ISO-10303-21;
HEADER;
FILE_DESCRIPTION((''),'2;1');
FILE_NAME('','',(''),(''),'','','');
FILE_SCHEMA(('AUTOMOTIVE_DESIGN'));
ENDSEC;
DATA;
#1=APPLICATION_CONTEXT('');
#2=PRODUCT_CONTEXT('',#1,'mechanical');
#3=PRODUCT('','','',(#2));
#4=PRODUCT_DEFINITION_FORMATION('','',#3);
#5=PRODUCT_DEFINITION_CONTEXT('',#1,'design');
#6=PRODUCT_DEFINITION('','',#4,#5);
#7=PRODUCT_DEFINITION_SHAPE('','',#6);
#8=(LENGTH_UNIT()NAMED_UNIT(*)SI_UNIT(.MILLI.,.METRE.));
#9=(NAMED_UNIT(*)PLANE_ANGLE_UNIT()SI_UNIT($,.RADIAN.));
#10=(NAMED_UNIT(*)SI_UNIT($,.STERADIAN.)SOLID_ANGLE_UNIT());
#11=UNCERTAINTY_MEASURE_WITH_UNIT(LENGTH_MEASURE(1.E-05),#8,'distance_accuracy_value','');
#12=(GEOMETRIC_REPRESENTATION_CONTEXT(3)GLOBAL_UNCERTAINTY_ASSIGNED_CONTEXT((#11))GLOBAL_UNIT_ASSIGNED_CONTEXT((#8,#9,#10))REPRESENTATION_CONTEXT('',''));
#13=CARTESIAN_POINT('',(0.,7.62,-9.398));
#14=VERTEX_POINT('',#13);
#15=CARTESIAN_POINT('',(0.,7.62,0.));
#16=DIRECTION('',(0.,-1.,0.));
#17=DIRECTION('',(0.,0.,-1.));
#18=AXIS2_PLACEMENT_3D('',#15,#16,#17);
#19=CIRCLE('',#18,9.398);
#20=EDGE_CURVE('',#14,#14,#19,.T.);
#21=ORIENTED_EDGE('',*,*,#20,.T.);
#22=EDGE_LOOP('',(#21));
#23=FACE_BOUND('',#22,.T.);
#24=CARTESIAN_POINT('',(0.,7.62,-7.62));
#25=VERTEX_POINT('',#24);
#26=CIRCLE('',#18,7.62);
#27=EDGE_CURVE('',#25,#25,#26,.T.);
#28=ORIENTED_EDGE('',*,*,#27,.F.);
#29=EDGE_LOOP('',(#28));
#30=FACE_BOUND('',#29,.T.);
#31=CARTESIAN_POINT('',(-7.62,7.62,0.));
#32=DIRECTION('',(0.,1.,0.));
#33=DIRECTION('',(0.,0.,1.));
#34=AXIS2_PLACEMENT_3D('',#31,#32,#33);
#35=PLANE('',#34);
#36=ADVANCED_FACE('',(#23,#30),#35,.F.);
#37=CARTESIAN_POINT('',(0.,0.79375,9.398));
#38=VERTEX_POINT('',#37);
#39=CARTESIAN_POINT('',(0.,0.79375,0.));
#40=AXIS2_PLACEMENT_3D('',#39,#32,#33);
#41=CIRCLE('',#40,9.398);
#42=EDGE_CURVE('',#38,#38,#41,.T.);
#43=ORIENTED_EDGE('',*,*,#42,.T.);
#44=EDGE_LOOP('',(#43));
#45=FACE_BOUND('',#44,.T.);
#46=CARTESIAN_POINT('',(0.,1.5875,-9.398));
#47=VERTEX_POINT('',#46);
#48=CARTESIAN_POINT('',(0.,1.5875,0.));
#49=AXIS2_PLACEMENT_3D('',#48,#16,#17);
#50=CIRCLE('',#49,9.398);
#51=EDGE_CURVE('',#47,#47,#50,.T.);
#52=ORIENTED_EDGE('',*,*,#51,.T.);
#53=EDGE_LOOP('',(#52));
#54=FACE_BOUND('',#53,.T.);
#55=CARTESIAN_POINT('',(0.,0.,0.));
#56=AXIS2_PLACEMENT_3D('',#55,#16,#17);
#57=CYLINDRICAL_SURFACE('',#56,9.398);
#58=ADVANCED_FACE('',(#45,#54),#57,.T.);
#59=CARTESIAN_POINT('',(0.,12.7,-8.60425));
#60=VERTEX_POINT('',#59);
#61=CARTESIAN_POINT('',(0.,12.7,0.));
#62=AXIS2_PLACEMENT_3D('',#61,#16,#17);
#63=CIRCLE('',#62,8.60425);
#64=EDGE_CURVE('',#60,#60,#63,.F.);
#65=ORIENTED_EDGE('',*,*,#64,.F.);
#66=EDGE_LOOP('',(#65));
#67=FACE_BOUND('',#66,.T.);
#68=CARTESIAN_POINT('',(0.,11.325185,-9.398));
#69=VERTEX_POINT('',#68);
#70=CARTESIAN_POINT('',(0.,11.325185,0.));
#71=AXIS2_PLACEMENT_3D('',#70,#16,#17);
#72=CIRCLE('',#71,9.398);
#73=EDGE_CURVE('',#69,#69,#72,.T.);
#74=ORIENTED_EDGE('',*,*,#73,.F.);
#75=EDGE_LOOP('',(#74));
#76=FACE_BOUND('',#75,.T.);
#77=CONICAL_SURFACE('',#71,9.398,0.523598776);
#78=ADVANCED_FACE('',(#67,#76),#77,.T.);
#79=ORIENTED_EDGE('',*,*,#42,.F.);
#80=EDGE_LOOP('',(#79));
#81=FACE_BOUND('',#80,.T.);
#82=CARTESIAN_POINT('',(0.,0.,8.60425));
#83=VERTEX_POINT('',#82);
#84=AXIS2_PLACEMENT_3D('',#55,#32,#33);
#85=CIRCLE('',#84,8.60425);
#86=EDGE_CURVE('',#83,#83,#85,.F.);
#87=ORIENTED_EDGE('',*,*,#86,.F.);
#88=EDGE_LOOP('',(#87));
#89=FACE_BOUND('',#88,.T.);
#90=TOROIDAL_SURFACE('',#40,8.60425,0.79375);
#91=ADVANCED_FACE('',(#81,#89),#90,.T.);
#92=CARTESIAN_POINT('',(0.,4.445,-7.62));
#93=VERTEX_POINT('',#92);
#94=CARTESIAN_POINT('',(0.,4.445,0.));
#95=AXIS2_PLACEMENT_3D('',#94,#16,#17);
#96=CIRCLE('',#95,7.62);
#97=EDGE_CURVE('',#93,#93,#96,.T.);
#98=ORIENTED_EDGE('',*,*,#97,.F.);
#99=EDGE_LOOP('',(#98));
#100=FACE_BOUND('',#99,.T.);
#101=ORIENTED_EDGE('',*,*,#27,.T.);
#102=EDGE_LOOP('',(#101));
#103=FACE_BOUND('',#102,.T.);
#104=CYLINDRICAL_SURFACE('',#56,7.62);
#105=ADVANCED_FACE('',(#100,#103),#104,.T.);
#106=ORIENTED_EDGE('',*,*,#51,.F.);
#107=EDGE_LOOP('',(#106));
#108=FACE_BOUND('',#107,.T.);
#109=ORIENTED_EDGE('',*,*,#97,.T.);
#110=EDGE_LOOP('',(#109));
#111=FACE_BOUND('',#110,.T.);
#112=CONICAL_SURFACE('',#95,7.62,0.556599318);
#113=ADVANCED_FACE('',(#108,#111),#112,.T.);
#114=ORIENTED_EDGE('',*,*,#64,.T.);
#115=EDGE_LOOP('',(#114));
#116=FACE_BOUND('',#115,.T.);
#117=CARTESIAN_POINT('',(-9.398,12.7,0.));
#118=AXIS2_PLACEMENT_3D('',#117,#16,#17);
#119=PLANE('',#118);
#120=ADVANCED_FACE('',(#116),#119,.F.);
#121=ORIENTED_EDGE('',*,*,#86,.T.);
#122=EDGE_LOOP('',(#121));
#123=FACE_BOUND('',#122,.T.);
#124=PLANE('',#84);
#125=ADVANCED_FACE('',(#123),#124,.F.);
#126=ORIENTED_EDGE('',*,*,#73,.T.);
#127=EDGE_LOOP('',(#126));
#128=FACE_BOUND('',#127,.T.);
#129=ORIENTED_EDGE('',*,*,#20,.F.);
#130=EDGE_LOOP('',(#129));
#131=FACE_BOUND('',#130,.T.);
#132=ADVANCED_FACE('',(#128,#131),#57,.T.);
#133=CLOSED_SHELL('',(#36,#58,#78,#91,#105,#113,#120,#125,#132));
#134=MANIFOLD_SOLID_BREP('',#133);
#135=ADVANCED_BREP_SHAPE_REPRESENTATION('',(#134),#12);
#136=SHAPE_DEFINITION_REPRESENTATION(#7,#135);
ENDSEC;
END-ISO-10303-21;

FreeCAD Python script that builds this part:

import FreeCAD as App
import Part
import Sketcher

V = App.Vector
Q = App.Units.Quantity


def edges_at(feature, points):
    """Names of the edges that pass closest to the given points."""
    edges = feature.Shape.Edges
    near = lambda p: min(range(len(edges)), key=lambda i: edges[i].distToShape(Part.Vertex(*p))[0])
    return sorted({f"Edge{near(p) + 1}" for p in points})

doc = App.newDocument("Part")
body = doc.addObject("PartDesign::Body", "Body")

# Sketch on XY plane
sketch1 = doc.addObject("Sketcher::SketchObject", "Sketch")
body.addObject(sketch1)
sketch1.AttachmentSupport = (doc.XY_Plane, [""])
sketch1.MapMode = "FlatFace"
sketch1.addGeometry(Part.LineSegment(V(-9.4, 0, 0), V(0, 0, 0)), False)
sketch1.addGeometry(Part.LineSegment(V(0, 0, 0), V(0, 12.7, 0)), False)
sketch1.addGeometry(Part.LineSegment(V(0, 12.7, 0), V(-9.4, 12.7, 0)), False)
sketch1.addGeometry(Part.LineSegment(V(-9.4, 12.7, 0), V(-9.4, 7.6, 0)), False)
sketch1.addGeometry(Part.LineSegment(V(-9.4, 7.6, 0), V(-7.6, 7.6, 0)), False)
sketch1.addGeometry(Part.LineSegment(V(-7.6, 7.6, 0), V(-7.6, 4.4, 0)), False)
sketch1.addGeometry(Part.LineSegment(V(-7.6, 4.4, 0), V(-9.4, 1.6, 0)), False)
sketch1.addGeometry(Part.LineSegment(V(-9.4, 1.6, 0), V(-9.4, 0, 0)), False)
sketch1.addConstraint(Sketcher.Constraint("Coincident", 0, 2, 1, 1))
sketch1.addConstraint(Sketcher.Constraint("Coincident", 1, 2, 2, 1))
sketch1.addConstraint(Sketcher.Constraint("Coincident", 2, 2, 3, 1))
sketch1.addConstraint(Sketcher.Constraint("Coincident", 3, 2, 4, 1))
sketch1.addConstraint(Sketcher.Constraint("Coincident", 4, 2, 5, 1))
sketch1.addConstraint(Sketcher.Constraint("Coincident", 5, 2, 6, 1))
sketch1.addConstraint(Sketcher.Constraint("Coincident", 6, 2, 7, 1))
sketch1.addConstraint(Sketcher.Constraint("Coincident", 7, 2, 0, 1))
sketch1.addConstraint(Sketcher.Constraint("Horizontal", 0))
sketch1.addConstraint(Sketcher.Constraint("Vertical", 1))
sketch1.addConstraint(Sketcher.Constraint("Horizontal", 2))
sketch1.addConstraint(Sketcher.Constraint("Vertical", 3))
sketch1.addConstraint(Sketcher.Constraint("Horizontal", 4))
sketch1.addConstraint(Sketcher.Constraint("Vertical", 5))
sketch1.addConstraint(Sketcher.Constraint("Vertical", 7))
sketch1.addConstraint(Sketcher.Constraint("Coincident", 0, 2, -1, 1))
sketch1.addConstraint(Sketcher.Constraint("Vertical", 3, 2, 6, 2))
sketch1.addConstraint(Sketcher.Constraint("DistanceY", 1, 1, 1, 2, Q("0.5 in")))
sketch1.addConstraint(Sketcher.Constraint("DistanceY", 3, 2, 3, 1, Q("0.2 in")))
sketch1.addConstraint(Sketcher.Constraint("DistanceX", 0, 1, 0, 2, Q("0.37 in")))
sketch1.addConstraint(Sketcher.Constraint("DistanceX", 4, 1, 4, 2, Q("0.07 in")))
sketch1.addConstraint(Sketcher.Constraint("DistanceY", 5, 2, 5, 1, Q("0.125 in")))
sketch1.addConstraint(Sketcher.Constraint("DistanceY", 7, 2, 7, 1, Q("0.0625 in")))
revolution = doc.addObject("PartDesign::Revolution", "Revolution")
body.addObject(revolution)
revolution.Profile = sketch1
revolution.ReferenceAxis = (sketch1, ["V_Axis"])
revolution.Angle = 360
doc.recompute()

fillet = doc.addObject("PartDesign::Fillet", "Fillet")
body.addObject(fillet)
fillet.Base = (revolution, edges_at(revolution, [(9.398, 0, 0)]))
fillet.Radius = Q("0.03125 in")
doc.recompute()

chamfer = doc.addObject("PartDesign::Chamfer", "Chamfer")
body.addObject(chamfer)
chamfer.Base = (fillet, edges_at(fillet, [(9.398, 12.7, 0)]))
chamfer.ChamferType = "Two distances"
chamfer.Size = Q("0.03125 in")
chamfer.Size2 = 1.374815
chamfer.FlipDirection = True

doc.recompute()
